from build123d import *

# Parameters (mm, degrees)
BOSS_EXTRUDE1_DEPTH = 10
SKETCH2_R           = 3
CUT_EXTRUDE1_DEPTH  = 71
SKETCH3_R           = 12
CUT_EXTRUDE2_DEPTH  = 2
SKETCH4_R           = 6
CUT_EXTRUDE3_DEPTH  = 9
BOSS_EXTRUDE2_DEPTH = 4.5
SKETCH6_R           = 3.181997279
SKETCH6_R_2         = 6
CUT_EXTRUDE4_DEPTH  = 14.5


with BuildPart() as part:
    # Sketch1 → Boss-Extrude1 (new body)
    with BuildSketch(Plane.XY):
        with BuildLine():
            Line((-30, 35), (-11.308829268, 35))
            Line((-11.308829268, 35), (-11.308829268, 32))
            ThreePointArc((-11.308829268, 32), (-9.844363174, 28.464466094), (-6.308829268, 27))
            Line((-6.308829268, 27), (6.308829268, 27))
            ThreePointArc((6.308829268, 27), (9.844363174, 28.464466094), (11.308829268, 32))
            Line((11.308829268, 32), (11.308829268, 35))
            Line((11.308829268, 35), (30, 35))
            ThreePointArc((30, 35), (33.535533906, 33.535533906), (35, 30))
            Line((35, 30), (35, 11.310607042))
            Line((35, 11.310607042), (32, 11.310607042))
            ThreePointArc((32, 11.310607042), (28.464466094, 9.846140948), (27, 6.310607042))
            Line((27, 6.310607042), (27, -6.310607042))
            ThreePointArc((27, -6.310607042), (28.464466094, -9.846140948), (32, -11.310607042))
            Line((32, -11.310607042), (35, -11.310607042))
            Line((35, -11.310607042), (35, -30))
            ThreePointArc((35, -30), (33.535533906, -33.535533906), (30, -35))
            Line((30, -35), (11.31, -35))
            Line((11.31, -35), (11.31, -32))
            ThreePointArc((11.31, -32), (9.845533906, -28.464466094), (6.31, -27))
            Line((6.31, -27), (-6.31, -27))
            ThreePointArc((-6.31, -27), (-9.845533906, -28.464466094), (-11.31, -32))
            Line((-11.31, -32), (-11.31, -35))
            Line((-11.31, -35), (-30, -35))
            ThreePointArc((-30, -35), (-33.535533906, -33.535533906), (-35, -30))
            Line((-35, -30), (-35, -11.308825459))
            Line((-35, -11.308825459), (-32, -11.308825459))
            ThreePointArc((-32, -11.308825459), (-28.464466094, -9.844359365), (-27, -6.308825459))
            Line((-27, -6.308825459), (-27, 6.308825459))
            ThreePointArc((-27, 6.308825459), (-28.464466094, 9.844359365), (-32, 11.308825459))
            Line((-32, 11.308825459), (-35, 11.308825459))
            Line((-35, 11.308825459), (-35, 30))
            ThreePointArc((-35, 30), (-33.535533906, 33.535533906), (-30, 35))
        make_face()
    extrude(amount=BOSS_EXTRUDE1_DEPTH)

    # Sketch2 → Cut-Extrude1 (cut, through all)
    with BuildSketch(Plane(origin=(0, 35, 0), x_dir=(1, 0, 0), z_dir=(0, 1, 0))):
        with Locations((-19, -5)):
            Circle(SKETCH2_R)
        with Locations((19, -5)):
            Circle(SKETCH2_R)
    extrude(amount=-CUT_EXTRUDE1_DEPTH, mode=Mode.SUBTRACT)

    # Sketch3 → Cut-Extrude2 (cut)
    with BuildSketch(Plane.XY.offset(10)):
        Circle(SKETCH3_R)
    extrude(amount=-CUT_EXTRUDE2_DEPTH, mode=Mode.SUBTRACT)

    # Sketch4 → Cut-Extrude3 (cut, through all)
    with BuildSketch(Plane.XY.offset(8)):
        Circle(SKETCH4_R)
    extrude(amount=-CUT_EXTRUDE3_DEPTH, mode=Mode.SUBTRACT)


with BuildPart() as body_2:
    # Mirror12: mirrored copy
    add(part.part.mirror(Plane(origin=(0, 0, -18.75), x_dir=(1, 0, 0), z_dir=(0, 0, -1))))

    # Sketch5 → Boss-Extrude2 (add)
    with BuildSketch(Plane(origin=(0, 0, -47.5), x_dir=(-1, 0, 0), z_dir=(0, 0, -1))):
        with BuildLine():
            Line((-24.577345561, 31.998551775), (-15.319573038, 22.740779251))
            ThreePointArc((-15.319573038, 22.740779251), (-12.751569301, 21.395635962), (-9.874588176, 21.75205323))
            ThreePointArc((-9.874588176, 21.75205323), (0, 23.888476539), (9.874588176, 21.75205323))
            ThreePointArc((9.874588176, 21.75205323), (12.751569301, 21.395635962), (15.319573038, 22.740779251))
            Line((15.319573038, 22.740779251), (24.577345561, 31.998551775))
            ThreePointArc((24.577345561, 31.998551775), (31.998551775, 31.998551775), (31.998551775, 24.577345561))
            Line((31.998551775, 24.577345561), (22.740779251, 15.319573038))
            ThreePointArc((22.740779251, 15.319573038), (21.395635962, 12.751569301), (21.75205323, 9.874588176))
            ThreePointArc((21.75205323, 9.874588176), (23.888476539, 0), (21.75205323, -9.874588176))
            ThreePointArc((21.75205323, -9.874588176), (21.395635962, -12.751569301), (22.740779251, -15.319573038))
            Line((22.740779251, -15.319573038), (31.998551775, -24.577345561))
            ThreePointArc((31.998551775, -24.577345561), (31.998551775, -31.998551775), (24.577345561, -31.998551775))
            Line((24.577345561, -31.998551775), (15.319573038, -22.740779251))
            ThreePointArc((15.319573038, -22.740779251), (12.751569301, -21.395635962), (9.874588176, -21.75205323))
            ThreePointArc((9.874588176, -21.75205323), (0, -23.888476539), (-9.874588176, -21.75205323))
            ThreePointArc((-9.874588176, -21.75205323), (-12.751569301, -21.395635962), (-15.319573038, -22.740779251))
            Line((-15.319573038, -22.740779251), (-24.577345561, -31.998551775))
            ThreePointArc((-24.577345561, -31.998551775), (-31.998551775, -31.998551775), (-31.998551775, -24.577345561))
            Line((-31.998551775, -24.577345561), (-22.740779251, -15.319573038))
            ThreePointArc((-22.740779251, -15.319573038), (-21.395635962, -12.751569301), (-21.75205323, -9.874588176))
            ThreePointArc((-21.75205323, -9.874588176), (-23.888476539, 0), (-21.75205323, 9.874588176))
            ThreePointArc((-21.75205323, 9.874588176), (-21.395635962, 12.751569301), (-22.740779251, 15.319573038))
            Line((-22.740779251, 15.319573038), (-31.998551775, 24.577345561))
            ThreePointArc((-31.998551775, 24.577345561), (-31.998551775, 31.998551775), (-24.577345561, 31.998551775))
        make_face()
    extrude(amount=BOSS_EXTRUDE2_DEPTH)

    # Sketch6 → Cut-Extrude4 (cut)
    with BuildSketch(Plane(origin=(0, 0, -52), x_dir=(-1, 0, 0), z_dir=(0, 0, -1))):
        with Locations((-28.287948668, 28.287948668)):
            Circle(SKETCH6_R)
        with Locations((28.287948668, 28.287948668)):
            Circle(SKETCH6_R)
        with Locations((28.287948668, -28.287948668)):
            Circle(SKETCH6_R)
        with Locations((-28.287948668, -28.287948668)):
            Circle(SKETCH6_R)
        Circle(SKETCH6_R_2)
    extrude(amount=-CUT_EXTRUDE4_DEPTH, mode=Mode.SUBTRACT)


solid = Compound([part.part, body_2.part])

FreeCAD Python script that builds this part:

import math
import FreeCAD as App
import Part
import Sketcher
from FreeCAD import Vector

doc = App.newDocument("Part")
body = doc.addObject("PartDesign::Body", "Body")

sketch1 = doc.addObject("Sketcher::SketchObject", "Sketch")
body.addObject(sketch1)
sketch1.AttachmentSupport = (doc.XY_Plane, [""])
sketch1.MapMode = "FlatFace"
sketch1.addGeometry(Part.LineSegment(Vector(-11.3, 35, 0), Vector(-30, 35, 0)), False)
sketch1.addGeometry(Part.ArcOfCircle(Part.Circle(Vector(-30, 30, 0), Vector(0, 0, 1), 5), math.radians(90), math.radians(180)), False)
sketch1.addGeometry(Part.LineSegment(Vector(-35, 30, 0), Vector(-35, 11.3, 0)), False)
sketch1.addGeometry(Part.LineSegment(Vector(-35, 11.3, 0), Vector(-32, 11.3, 0)), False)
sketch1.addGeometry(Part.ArcOfCircle(Part.Circle(Vector(-32, 6.3, 0), Vector(0, 0, 1), 5), math.radians(0), math.radians(90)), False)
sketch1.addGeometry(Part.LineSegment(Vector(-27, 6.3, 0), Vector(-27, -6.3, 0)), False)
sketch1.addGeometry(Part.ArcOfCircle(Part.Circle(Vector(-32, -6.3, 0), Vector(0, 0, 1), 5), math.radians(-90), math.radians(0)), False)
sketch1.addGeometry(Part.LineSegment(Vector(-32, -11.3, 0), Vector(-35, -11.3, 0)), False)
sketch1.addGeometry(Part.LineSegment(Vector(-35, -11.3, 0), Vector(-35, -30, 0)), False)
sketch1.addGeometry(Part.ArcOfCircle(Part.Circle(Vector(-30, -30, 0), Vector(0, 0, 1), 5), math.radians(180), math.radians(270)), False)
sketch1.addGeometry(Part.LineSegment(Vector(-30, -35, 0), Vector(-11.3, -35, 0)), False)
sketch1.addGeometry(Part.LineSegment(Vector(-11.3, -35, 0), Vector(-11.3, -32, 0)), False)
sketch1.addGeometry(Part.ArcOfCircle(Part.Circle(Vector(-6.3, -32, 0), Vector(0, 0, 1), 5), math.radians(90), math.radians(180)), False)
sketch1.addGeometry(Part.LineSegment(Vector(-6.3, -27, 0), Vector(6.3, -27, 0)), False)
sketch1.addGeometry(Part.ArcOfCircle(Part.Circle(Vector(6.3, -32, 0), Vector(0, 0, 1), 5), math.radians(0), math.radians(90)), False)
sketch1.addGeometry(Part.LineSegment(Vector(11.3, -32, 0), Vector(11.3, -35, 0)), False)
sketch1.addGeometry(Part.LineSegment(Vector(11.3, -35, 0), Vector(30, -35, 0)), False)
sketch1.addGeometry(Part.ArcOfCircle(Part.Circle(Vector(30, -30, 0), Vector(0, 0, 1), 5), math.radians(-90), math.radians(0)), False)
sketch1.addGeometry(Part.LineSegment(Vector(35, -30, 0), Vector(35, -11.3, 0)), False)
sketch1.addGeometry(Part.LineSegment(Vector(35, -11.3, 0), Vector(32, -11.3, 0)), False)
sketch1.addGeometry(Part.ArcOfCircle(Part.Circle(Vector(32, -6.3, 0), Vector(0, 0, 1), 5), math.radians(180), math.radians(270)), False)
sketch1.addGeometry(Part.LineSegment(Vector(27, -6.3, 0), Vector(27, 6.3, 0)), False)
sketch1.addGeometry(Part.ArcOfCircle(Part.Circle(Vector(32, 6.3, 0), Vector(0, 0, 1), 5), math.radians(90), math.radians(180)), False)
sketch1.addGeometry(Part.LineSegment(Vector(32, 11.3, 0), Vector(35, 11.3, 0)), False)
sketch1.addGeometry(Part.LineSegment(Vector(35, 11.3, 0), Vector(35, 30, 0)), False)
sketch1.addGeometry(Part.ArcOfCircle(Part.Circle(Vector(30, 30, 0), Vector(0, 0, 1), 5), math.radians(0), math.radians(90)), False)
sketch1.addGeometry(Part.LineSegment(Vector(30, 35, 0), Vector(11.3, 35, 0)), False)
sketch1.addGeometry(Part.LineSegment(Vector(11.3, 35, 0), Vector(11.3, 32, 0)), False)
sketch1.addGeometry(Part.ArcOfCircle(Part.Circle(Vector(6.3, 32, 0), Vector(0, 0, 1), 5), math.radians(-90), math.radians(0)), False)
sketch1.addGeometry(Part.LineSegment(Vector(6.3, 27, 0), Vector(-6.3, 27, 0)), False)
sketch1.addGeometry(Part.ArcOfCircle(Part.Circle(Vector(-6.3, 32, 0), Vector(0, 0, 1), 5), math.radians(180), math.radians(270)), False)
sketch1.addGeometry(Part.LineSegment(Vector(-11.3, 32, 0), Vector(-11.3, 35, 0)), False)
sketch1.addConstraint(Sketcher.Constraint("Tangent", 0, 2, 1, 1))
sketch1.addConstraint(Sketcher.Constraint("Tangent", 1, 2, 2, 1))
sketch1.addConstraint(Sketcher.Constraint("Coincident", 2, 2, 3, 1))
sketch1.addConstraint(Sketcher.Constraint("Tangent", 3, 2, 4, 2))
sketch1.addConstraint(Sketcher.Constraint("Tangent", 4, 1, 5, 1))
sketch1.addConstraint(Sketcher.Constraint("Tangent", 5, 2, 6, 2))
sketch1.addConstraint(Sketcher.Constraint("Tangent", 6, 1, 7, 1))
sketch1.addConstraint(Sketcher.Constraint("Coincident", 7, 2, 8, 1))
sketch1.addConstraint(Sketcher.Constraint("Tangent", 8, 2, 9, 1))
sketch1.addConstraint(Sketcher.Constraint("Tangent", 9, 2, 10, 1))
sketch1.addConstraint(Sketcher.Constraint("Coincident", 10, 2, 11, 1))
sketch1.addConstraint(Sketcher.Constraint("Tangent", 11, 2, 12, 2))
sketch1.addConstraint(Sketcher.Constraint("Tangent", 12, 1, 13, 1))
sketch1.addConstraint(Sketcher.Constraint("Tangent", 13, 2, 14, 2))
sketch1.addConstraint(Sketcher.Constraint("Tangent", 14, 1, 15, 1))
sketch1.addConstraint(Sketcher.Constraint("Coincident", 15, 2, 16, 1))
sketch1.addConstraint(Sketcher.Constraint("Tangent", 16, 2, 17, 1))
sketch1.addConstraint(Sketcher.Constraint("Tangent", 17, 2, 18, 1))
sketch1.addConstraint(Sketcher.Constraint("Coincident", 18, 2, 19, 1))
sketch1.addConstraint(Sketcher.Constraint("Tangent", 19, 2, 20, 2))
sketch1.addConstraint(Sketcher.Constraint("Tangent", 20, 1, 21, 1))
sketch1.addConstraint(Sketcher.Constraint("Tangent", 21, 2, 22, 2))
sketch1.addConstraint(Sketcher.Constraint("Tangent", 22, 1, 23, 1))
sketch1.addConstraint(Sketcher.Constraint("Coincident", 23, 2, 24, 1))
sketch1.addConstraint(Sketcher.Constraint("Tangent", 24, 2, 25, 1))
sketch1.addConstraint(Sketcher.Constraint("Tangent", 25, 2, 26, 1))
sketch1.addConstraint(Sketcher.Constraint("Coincident", 26, 2, 27, 1))
sketch1.addConstraint(Sketcher.Constraint("Tangent", 27, 2, 28, 2))
sketch1.addConstraint(Sketcher.Constraint("Tangent", 28, 1, 29, 1))
sketch1.addConstraint(Sketcher.Constraint("Tangent", 29, 2, 30, 2))
sketch1.addConstraint(Sketcher.Constraint("Tangent", 30, 1, 31, 1))
sketch1.addConstraint(Sketcher.Constraint("Coincident", 31, 2, 0, 1))
sketch1.addConstraint(Sketcher.Constraint("Horizontal", 0))
sketch1.addConstraint(Sketcher.Constraint("Vertical", 2))
sketch1.addConstraint(Sketcher.Constraint("Horizontal", 3))
sketch1.addConstraint(Sketcher.Constraint("Vertical", 5))
sketch1.addConstraint(Sketcher.Constraint("Horizontal", 7))
sketch1.addConstraint(Sketcher.Constraint("Vertical", 8))
sketch1.addConstraint(Sketcher.Constraint("Horizontal", 10))
sketch1.addConstraint(Sketcher.Constraint("Vertical", 11))
sketch1.addConstraint(Sketcher.Constraint("Horizontal", 13))
sketch1.addConstraint(Sketcher.Constraint("Vertical", 15))
sketch1.addConstraint(Sketcher.Constraint("Horizontal", 16))
sketch1.addConstraint(Sketcher.Constraint("Vertical", 18))
sketch1.addConstraint(Sketcher.Constraint("Horizontal", 19))
sketch1.addConstraint(Sketcher.Constraint("Vertical", 21))
sketch1.addConstraint(Sketcher.Constraint("Horizontal", 23))
sketch1.addConstraint(Sketcher.Constraint("Vertical", 24))
sketch1.addConstraint(Sketcher.Constraint("Horizontal", 26))
sketch1.addConstraint(Sketcher.Constraint("Vertical", 27))
sketch1.addConstraint(Sketcher.Constraint("Horizontal", 29))
sketch1.addConstraint(Sketcher.Constraint("Vertical", 31))
sketch1.addConstraint(Sketcher.Constraint("Equal", 1, 4))
sketch1.addConstraint(Sketcher.Constraint("Equal", 4, 6))
sketch1.addConstraint(Sketcher.Constraint("Equal", 6, 9))
sketch1.addConstraint(Sketcher.Constraint("Equal", 9, 12))
sketch1.addConstraint(Sketcher.Constraint("Equal", 12, 14))
sketch1.addConstraint(Sketcher.Constraint("Equal", 14, 17))
sketch1.addConstraint(Sketcher.Constraint("Equal", 17, 20))
sketch1.addConstraint(Sketcher.Constraint("Equal", 20, 22))
sketch1.addConstraint(Sketcher.Constraint("Equal", 22, 25))
sketch1.addConstraint(Sketcher.Constraint("Equal", 25, 28))
sketch1.addConstraint(Sketcher.Constraint("Equal", 28, 30))
sketch1.addConstraint(Sketcher.Constraint("Symmetric", 1, 3, 17, 3, -1, 1))
sketch1.addConstraint(Sketcher.Constraint("Symmetric", 9, 3, 25, 3, -1, 1))
sketch1.addConstraint(Sketcher.Constraint("Symmetric", 9, 3, 17, 3, -2))
sketch1.addConstraint(Sketcher.Constraint("Equal", 10, 16))
sketch1.addConstraint(Sketcher.Constraint("Equal", 7, 19))
sketch1.addConstraint(Sketcher.Constraint("Equal", 0, 26))
sketch1.addConstraint(Sketcher.Constraint("Equal", 2, 8))
sketch1.addConstraint(Sketcher.Constraint("Equal", 23, 11))
sketch1.addConstraint(Sketcher.Constraint("Equal", 18, 24))
sketch1.addConstraint(Sketcher.Constraint("Equal", 15, 27))
sketch1.addConstraint(Sketcher.Constraint("Radius", 1, 5.0))
sketch1.addConstraint(Sketcher.Constraint("DistanceX", 3, 1, 3, 2, 3.0))
sketch1.addConstraint(Sketcher.Constraint("DistanceX", 1, 3, -1, 1, 30.0))
sketch1.addConstraint(Sketcher.Constraint("DistanceY", -1, 1, 1, 3, 30.0))
sketch1.addConstraint(Sketcher.Constraint("DistanceX", 10, 1, 10, 2, 18.69))
sketch1.addConstraint(Sketcher.Constraint("DistanceX", 0, 2, 0, 1, 18.691171))
sketch1.addConstraint(Sketcher.Constraint("DistanceY", 5, 2, 5, 1, 12.617651))
sketch1.addConstraint(Sketcher.Constraint("DistanceY", 18, 1, 18, 2, 18.689393))
pad1 = doc.addObject("PartDesign::Pad", "Pad")
body.addObject(pad1)
pad1.Profile = sketch1
pad1.Length = 10

sketch2 = doc.addObject("Sketcher::SketchObject", "Sketch001")
body.addObject(sketch2)
sketch2.AttachmentSupport = (doc.XZ_Plane, [""])
sketch2.MapMode = "FlatFace"
sketch2.AttachmentOffset = App.Placement(Vector(0, 0, -35), App.Rotation())
sketch2.addGeometry(Part.Circle(Vector(-19, 5, 0), Vector(0, 0, 1), 3), False)
sketch2.addGeometry(Part.Circle(Vector(19, 5, 0), Vector(0, 0, 1), 3), False)
sketch2.addConstraint(Sketcher.Constraint("Equal", 0, 1))
sketch2.addConstraint(Sketcher.Constraint("Symmetric", 0, 3, 1, 3, -2))
sketch2.addConstraint(Sketcher.Constraint("Diameter", 0, 6.0))
sketch2.addConstraint(Sketcher.Constraint("DistanceX", 0, 3, -1, 1, 19.0))
sketch2.addConstraint(Sketcher.Constraint("DistanceY", -1, 1, 0, 3, 5.0))
pocket1 = doc.addObject("PartDesign::Pocket", "Pocket")
body.addObject(pocket1)
pocket1.Profile = sketch2
pocket1.Type = "ThroughAll"
pocket1.Reversed = True

sketch3 = doc.addObject("Sketcher::SketchObject", "Sketch002")
body.addObject(sketch3)
sketch3.AttachmentSupport = (doc.XY_Plane, [""])
sketch3.MapMode = "FlatFace"
sketch3.AttachmentOffset = App.Placement(Vector(0, 0, 10), App.Rotation())
sketch3.addGeometry(Part.Circle(Vector(0, 0, 0), Vector(0, 0, 1), 12), False)
sketch3.addConstraint(Sketcher.Constraint("Coincident", 0, 3, -1, 1))
sketch3.addConstraint(Sketcher.Constraint("Diameter", 0, 24.0))
pocket2 = doc.addObject("PartDesign::Pocket", "Pocket001")
body.addObject(pocket2)
pocket2.Profile = sketch3
pocket2.Length = 2

sketch4 = doc.addObject("Sketcher::SketchObject", "Sketch003")
body.addObject(sketch4)
sketch4.AttachmentSupport = (doc.XY_Plane, [""])
sketch4.MapMode = "FlatFace"
sketch4.AttachmentOffset = App.Placement(Vector(0, 0, 8), App.Rotation())
sketch4.addGeometry(Part.Circle(Vector(0, 0, 0), Vector(0, 0, 1), 6), False)
sketch4.addConstraint(Sketcher.Constraint("Coincident", 0, 3, -1, 1))
sketch4.addConstraint(Sketcher.Constraint("Diameter", 0, 12.0))
pocket3 = doc.addObject("PartDesign::Pocket", "Pocket002")
body.addObject(pocket3)
pocket3.Profile = sketch4
pocket3.Type = "ThroughAll"
body2 = doc.addObject("PartDesign::Body", "Body001")
doc.recompute()

mirroring = doc.addObject("Part::Mirroring", "Mirroring")
mirroring.Source = body
mirroring.Base = Vector(0, 0, -18.75)
mirroring.Normal = Vector(0, 0, -1)
body2.BaseFeature = mirroring
doc.recompute()

sketch5 = doc.addObject("Sketcher::SketchObject", "Sketch004")
body2.addObject(sketch5)
sketch5.AttachmentSupport = (doc.getObject("XY_Plane001"), [""])
sketch5.MapMode = "FlatFace"
sketch5.AttachmentOffset = App.Placement(Vector(0, 0, -47.5), App.Rotation())
sketch5.addGeometry(Part.LineSegment(Vector(15.3, 22.7, 0), Vector(24.6, 32, 0)), False)
sketch5.addGeometry(Part.ArcOfCircle(Part.Circle(Vector(28.3, 28.3, 0), Vector(0, 0, 1), 5.2), math.radians(-45), math.radians(135)), False)
sketch5.addGeometry(Part.LineSegment(Vector(32, 24.6, 0), Vector(22.7, 15.3, 0)), False)
sketch5.addGeometry(Part.ArcOfCircle(Part.Circle(Vector(26.2, 11.9, 0), Vector(0, 0, 1), 4.9), math.radians(135), math.radians(204)), False)
sketch5.addGeometry(Part.ArcOfCircle(Part.Circle(Vector(0, 0, 0), Vector(0, 0, 1), 23.9), math.radians(-24), math.radians(24)), False)
sketch5.addGeometry(Part.ArcOfCircle(Part.Circle(Vector(26.2, -11.9, 0), Vector(0, 0, 1), 4.9), math.radians(156), math.radians(225)), False)
sketch5.addGeometry(Part.LineSegment(Vector(22.7, -15.3, 0), Vector(32, -24.6, 0)), False)
sketch5.addGeometry(Part.ArcOfCircle(Part.Circle(Vector(28.3, -28.3, 0), Vector(0, 0, 1), 5.2), math.radians(-135), math.radians(45)), False)
sketch5.addGeometry(Part.LineSegment(Vector(24.6, -32, 0), Vector(15.3, -22.7, 0)), False)
sketch5.addGeometry(Part.ArcOfCircle(Part.Circle(Vector(11.9, -26.2, 0), Vector(0, 0, 1), 4.9), math.radians(45), math.radians(114)), False)
sketch5.addGeometry(Part.ArcOfCircle(Part.Circle(Vector(0, 0, 0), Vector(0, 0, 1), 23.9), math.radians(-114), math.radians(-66)), False)
sketch5.addGeometry(Part.ArcOfCircle(Part.Circle(Vector(-11.9, -26.2, 0), Vector(0, 0, 1), 4.9), math.radians(66), math.radians(135)), False)
sketch5.addGeometry(Part.LineSegment(Vector(-15.3, -22.7, 0), Vector(-24.6, -32, 0)), False)
sketch5.addGeometry(Part.ArcOfCircle(Part.Circle(Vector(-28.3, -28.3, 0), Vector(0, 0, 1), 5.2), math.radians(135), math.radians(315)), False)
sketch5.addGeometry(Part.LineSegment(Vector(-32, -24.6, 0), Vector(-22.7, -15.3, 0)), False)
sketch5.addGeometry(Part.ArcOfCircle(Part.Circle(Vector(-26.2, -11.9, 0), Vector(0, 0, 1), 4.9), math.radians(-45), math.radians(24)), False)
sketch5.addGeometry(Part.ArcOfCircle(Part.Circle(Vector(0, 0, 0), Vector(0, 0, 1), 23.9), math.radians(156), math.radians(204)), False)
sketch5.addGeometry(Part.ArcOfCircle(Part.Circle(Vector(-26.2, 11.9, 0), Vector(0, 0, 1), 4.9), math.radians(-24), math.radians(45)), False)
sketch5.addGeometry(Part.LineSegment(Vector(-22.7, 15.3, 0), Vector(-32, 24.6, 0)), False)
sketch5.addGeometry(Part.ArcOfCircle(Part.Circle(Vector(-28.3, 28.3, 0), Vector(0, 0, 1), 5.2), math.radians(45), math.radians(225)), False)
sketch5.addGeometry(Part.LineSegment(Vector(-24.6, 32, 0), Vector(-15.3, 22.7, 0)), False)
sketch5.addGeometry(Part.ArcOfCircle(Part.Circle(Vector(-11.9, 26.2, 0), Vector(0, 0, 1), 4.9), math.radians(-135), math.radians(-66)), False)
sketch5.addGeometry(Part.ArcOfCircle(Part.Circle(Vector(0, 0, 0), Vector(0, 0, 1), 23.9), math.radians(66), math.radians(114)), False)
sketch5.addGeometry(Part.ArcOfCircle(Part.Circle(Vector(11.9, 26.2, 0), Vector(0, 0, 1), 4.9), math.radians(-114), math.radians(-45)), False)
sketch5.addConstraint(Sketcher.Constraint("Tangent", 0, 2, 1, 2))
sketch5.addConstraint(Sketcher.Constraint("Tangent", 1, 1, 2, 1))
sketch5.addConstraint(Sketcher.Constraint("Tangent", 2, 2, 3, 1))
sketch5.addConstraint(Sketcher.Constraint("Tangent", 3, 2, 4, 2))
sketch5.addConstraint(Sketcher.Constraint("Tangent", 4, 1, 5, 1))
sketch5.addConstraint(Sketcher.Constraint("Tangent", 5, 2, 6, 1))
sketch5.addConstraint(Sketcher.Constraint("Tangent", 6, 2, 7, 2))
sketch5.addConstraint(Sketcher.Constraint("Tangent", 7, 1, 8, 1))
sketch5.addConstraint(Sketcher.Constraint("Tangent", 8, 2, 9, 1))
sketch5.addConstraint(Sketcher.Constraint("Tangent", 9, 2, 10, 2))
sketch5.addConstraint(Sketcher.Constraint("Tangent", 10, 1, 11, 1))
sketch5.addConstraint(Sketcher.Constraint("Tangent", 11, 2, 12, 1))
sketch5.addConstraint(Sketcher.Constraint("Tangent", 12, 2, 13, 2))
sketch5.addConstraint(Sketcher.Constraint("Tangent", 13, 1, 14, 1))
sketch5.addConstraint(Sketcher.Constraint("Tangent", 14, 2, 15, 1))
sketch5.addConstraint(Sketcher.Constraint("Tangent", 15, 2, 16, 2))
sketch5.addConstraint(Sketcher.Constraint("Tangent", 16, 1, 17, 1))
sketch5.addConstraint(Sketcher.Constraint("Tangent", 17, 2, 18, 1))
sketch5.addConstraint(Sketcher.Constraint("Tangent", 18, 2, 19, 2))
sketch5.addConstraint(Sketcher.Constraint("Tangent", 19, 1, 20, 1))
sketch5.addConstraint(Sketcher.Constraint("Tangent", 20, 2, 21, 1))
sketch5.addConstraint(Sketcher.Constraint("Tangent", 21, 2, 22, 2))
sketch5.addConstraint(Sketcher.Constraint("Tangent", 22, 1, 23, 1))
sketch5.addConstraint(Sketcher.Constraint("Tangent", 23, 2, 0, 1))
sketch5.addConstraint(Sketcher.Constraint("Coincident", 4, 3, -1, 1))
sketch5.addConstraint(Sketcher.Constraint("Coincident", 10, 3, -1, 1))
sketch5.addConstraint(Sketcher.Constraint("Coincident", 16, 3, -1, 1))
sketch5.addConstraint(Sketcher.Constraint("Coincident", 22, 3, -1, 1))
sketch5.addConstraint(Sketcher.Constraint("Equal", 3, 5))
sketch5.addConstraint(Sketcher.Constraint("Equal", 1, 7))
sketch5.addConstraint(Sketcher.Constraint("Equal", 5, 9))
sketch5.addConstraint(Sketcher.Constraint("Equal", 4, 10))
sketch5.addConstraint(Sketcher.Constraint("Equal", 9, 11))
sketch5.addConstraint(Sketcher.Constraint("Equal", 7, 13))
sketch5.addConstraint(Sketcher.Constraint("Equal", 11, 15))
sketch5.addConstraint(Sketcher.Constraint("Equal", 10, 16))
sketch5.addConstraint(Sketcher.Constraint("Equal", 15, 17))
sketch5.addConstraint(Sketcher.Constraint("Equal", 13, 19))
sketch5.addConstraint(Sketcher.Constraint("Equal", 17, 21))
sketch5.addConstraint(Sketcher.Constraint("Equal", 16, 22))
sketch5.addConstraint(Sketcher.Constraint("Equal", 21, 23))
sketch5.addConstraint(Sketcher.Constraint("Symmetric", 1, 3, 13, 3, -1, 1))
sketch5.addConstraint(Sketcher.Constraint("Symmetric", 7, 3, 19, 3, -1, 1))
sketch5.addConstraint(Sketcher.Constraint("Symmetric", 7, 3, 13, 3, -2))
sketch5.addConstraint(Sketcher.Constraint("Parallel", 0, 2))
sketch5.addConstraint(Sketcher.Constraint("Perpendicular", 2, 6))
sketch5.addConstraint(Sketcher.Constraint("Parallel", 6, 8))
sketch5.addConstraint(Sketcher.Constraint("Perpendicular", 8, 12))
sketch5.addConstraint(Sketcher.Constraint("Parallel", 12, 14))
sketch5.addConstraint(Sketcher.Constraint("Perpendicular", 14, 18))
sketch5.addConstraint(Sketcher.Constraint("Parallel", 18, 20))
sketch5.addConstraint(Sketcher.Constraint("Horizontal", 9, 3, 11, 3))
sketch5.addConstraint(Sketcher.Constraint("Equal", 0, 2))
sketch5.addConstraint(Sketcher.Constraint("Radius", 3, 4.85956))
sketch5.addConstraint(Sketcher.Constraint("Radius", 1, 5.247585))
sketch5.addConstraint(Sketcher.Constraint("Radius", 4, 23.888477))
sketch5.addConstraint(Sketcher.Constraint("DistanceX", 23, 3, 0, 2, 12.694))
pad2 = doc.addObject("PartDesign::Pad", "Pad001")
body2.addObject(pad2)
pad2.Profile = sketch5
pad2.Length = 4.5
pad2.Reversed = True

sketch6 = doc.addObject("Sketcher::SketchObject", "Sketch005")
body2.addObject(sketch6)
sketch6.AttachmentSupport = (doc.getObject("XY_Plane001"), [""])
sketch6.MapMode = "FlatFace"
sketch6.AttachmentOffset = App.Placement(Vector(0, 0, -52), App.Rotation())
sketch6.addGeometry(Part.Circle(Vector(28.3, 28.3, 0), Vector(0, 0, 1), 3.2), False)
sketch6.addGeometry(Part.Circle(Vector(-28.3, 28.3, 0), Vector(0, 0, 1), 3.2), False)
sketch6.addGeometry(Part.Circle(Vector(-28.3, -28.3, 0), Vector(0, 0, 1), 3.2), False)
sketch6.addGeometry(Part.Circle(Vector(28.3, -28.3, 0), Vector(0, 0, 1), 3.2), False)
sketch6.addGeometry(Part.Circle(Vector(0, 0, 0), Vector(0, 0, 1), 6), False)
sketch6.addConstraint(Sketcher.Constraint("Coincident", 4, 3, -1, 1))
sketch6.addConstraint(Sketcher.Constraint("Equal", 0, 1))
sketch6.addConstraint(Sketcher.Constraint("Equal", 1, 2))
sketch6.addConstraint(Sketcher.Constraint("Equal", 2, 3))
sketch6.addConstraint(Sketcher.Constraint("Symmetric", 0, 3, 2, 3, -1, 1))
sketch6.addConstraint(Sketcher.Constraint("Symmetric", 1, 3, 3, 3, -1, 1))
sketch6.addConstraint(Sketcher.Constraint("Symmetric", 0, 3, 1, 3, -2))
sketch6.addConstraint(Sketcher.Constraint("Diameter", 4, 12.0))
sketch6.addConstraint(Sketcher.Constraint("Diameter", 0, 6.363995))
sketch6.addConstraint(Sketcher.Constraint("DistanceX", -1, 1, 0, 3, 28.287949))
sketch6.addConstraint(Sketcher.Constraint("DistanceY", -1, 1, 0, 3, 28.287949))
pocket4 = doc.addObject("PartDesign::Pocket", "Pocket003")
body2.addObject(pocket4)
pocket4.Profile = sketch6
pocket4.Length = 14.5
pocket4.Reversed = True
mirroring.Visibility = False

doc.recompute()
